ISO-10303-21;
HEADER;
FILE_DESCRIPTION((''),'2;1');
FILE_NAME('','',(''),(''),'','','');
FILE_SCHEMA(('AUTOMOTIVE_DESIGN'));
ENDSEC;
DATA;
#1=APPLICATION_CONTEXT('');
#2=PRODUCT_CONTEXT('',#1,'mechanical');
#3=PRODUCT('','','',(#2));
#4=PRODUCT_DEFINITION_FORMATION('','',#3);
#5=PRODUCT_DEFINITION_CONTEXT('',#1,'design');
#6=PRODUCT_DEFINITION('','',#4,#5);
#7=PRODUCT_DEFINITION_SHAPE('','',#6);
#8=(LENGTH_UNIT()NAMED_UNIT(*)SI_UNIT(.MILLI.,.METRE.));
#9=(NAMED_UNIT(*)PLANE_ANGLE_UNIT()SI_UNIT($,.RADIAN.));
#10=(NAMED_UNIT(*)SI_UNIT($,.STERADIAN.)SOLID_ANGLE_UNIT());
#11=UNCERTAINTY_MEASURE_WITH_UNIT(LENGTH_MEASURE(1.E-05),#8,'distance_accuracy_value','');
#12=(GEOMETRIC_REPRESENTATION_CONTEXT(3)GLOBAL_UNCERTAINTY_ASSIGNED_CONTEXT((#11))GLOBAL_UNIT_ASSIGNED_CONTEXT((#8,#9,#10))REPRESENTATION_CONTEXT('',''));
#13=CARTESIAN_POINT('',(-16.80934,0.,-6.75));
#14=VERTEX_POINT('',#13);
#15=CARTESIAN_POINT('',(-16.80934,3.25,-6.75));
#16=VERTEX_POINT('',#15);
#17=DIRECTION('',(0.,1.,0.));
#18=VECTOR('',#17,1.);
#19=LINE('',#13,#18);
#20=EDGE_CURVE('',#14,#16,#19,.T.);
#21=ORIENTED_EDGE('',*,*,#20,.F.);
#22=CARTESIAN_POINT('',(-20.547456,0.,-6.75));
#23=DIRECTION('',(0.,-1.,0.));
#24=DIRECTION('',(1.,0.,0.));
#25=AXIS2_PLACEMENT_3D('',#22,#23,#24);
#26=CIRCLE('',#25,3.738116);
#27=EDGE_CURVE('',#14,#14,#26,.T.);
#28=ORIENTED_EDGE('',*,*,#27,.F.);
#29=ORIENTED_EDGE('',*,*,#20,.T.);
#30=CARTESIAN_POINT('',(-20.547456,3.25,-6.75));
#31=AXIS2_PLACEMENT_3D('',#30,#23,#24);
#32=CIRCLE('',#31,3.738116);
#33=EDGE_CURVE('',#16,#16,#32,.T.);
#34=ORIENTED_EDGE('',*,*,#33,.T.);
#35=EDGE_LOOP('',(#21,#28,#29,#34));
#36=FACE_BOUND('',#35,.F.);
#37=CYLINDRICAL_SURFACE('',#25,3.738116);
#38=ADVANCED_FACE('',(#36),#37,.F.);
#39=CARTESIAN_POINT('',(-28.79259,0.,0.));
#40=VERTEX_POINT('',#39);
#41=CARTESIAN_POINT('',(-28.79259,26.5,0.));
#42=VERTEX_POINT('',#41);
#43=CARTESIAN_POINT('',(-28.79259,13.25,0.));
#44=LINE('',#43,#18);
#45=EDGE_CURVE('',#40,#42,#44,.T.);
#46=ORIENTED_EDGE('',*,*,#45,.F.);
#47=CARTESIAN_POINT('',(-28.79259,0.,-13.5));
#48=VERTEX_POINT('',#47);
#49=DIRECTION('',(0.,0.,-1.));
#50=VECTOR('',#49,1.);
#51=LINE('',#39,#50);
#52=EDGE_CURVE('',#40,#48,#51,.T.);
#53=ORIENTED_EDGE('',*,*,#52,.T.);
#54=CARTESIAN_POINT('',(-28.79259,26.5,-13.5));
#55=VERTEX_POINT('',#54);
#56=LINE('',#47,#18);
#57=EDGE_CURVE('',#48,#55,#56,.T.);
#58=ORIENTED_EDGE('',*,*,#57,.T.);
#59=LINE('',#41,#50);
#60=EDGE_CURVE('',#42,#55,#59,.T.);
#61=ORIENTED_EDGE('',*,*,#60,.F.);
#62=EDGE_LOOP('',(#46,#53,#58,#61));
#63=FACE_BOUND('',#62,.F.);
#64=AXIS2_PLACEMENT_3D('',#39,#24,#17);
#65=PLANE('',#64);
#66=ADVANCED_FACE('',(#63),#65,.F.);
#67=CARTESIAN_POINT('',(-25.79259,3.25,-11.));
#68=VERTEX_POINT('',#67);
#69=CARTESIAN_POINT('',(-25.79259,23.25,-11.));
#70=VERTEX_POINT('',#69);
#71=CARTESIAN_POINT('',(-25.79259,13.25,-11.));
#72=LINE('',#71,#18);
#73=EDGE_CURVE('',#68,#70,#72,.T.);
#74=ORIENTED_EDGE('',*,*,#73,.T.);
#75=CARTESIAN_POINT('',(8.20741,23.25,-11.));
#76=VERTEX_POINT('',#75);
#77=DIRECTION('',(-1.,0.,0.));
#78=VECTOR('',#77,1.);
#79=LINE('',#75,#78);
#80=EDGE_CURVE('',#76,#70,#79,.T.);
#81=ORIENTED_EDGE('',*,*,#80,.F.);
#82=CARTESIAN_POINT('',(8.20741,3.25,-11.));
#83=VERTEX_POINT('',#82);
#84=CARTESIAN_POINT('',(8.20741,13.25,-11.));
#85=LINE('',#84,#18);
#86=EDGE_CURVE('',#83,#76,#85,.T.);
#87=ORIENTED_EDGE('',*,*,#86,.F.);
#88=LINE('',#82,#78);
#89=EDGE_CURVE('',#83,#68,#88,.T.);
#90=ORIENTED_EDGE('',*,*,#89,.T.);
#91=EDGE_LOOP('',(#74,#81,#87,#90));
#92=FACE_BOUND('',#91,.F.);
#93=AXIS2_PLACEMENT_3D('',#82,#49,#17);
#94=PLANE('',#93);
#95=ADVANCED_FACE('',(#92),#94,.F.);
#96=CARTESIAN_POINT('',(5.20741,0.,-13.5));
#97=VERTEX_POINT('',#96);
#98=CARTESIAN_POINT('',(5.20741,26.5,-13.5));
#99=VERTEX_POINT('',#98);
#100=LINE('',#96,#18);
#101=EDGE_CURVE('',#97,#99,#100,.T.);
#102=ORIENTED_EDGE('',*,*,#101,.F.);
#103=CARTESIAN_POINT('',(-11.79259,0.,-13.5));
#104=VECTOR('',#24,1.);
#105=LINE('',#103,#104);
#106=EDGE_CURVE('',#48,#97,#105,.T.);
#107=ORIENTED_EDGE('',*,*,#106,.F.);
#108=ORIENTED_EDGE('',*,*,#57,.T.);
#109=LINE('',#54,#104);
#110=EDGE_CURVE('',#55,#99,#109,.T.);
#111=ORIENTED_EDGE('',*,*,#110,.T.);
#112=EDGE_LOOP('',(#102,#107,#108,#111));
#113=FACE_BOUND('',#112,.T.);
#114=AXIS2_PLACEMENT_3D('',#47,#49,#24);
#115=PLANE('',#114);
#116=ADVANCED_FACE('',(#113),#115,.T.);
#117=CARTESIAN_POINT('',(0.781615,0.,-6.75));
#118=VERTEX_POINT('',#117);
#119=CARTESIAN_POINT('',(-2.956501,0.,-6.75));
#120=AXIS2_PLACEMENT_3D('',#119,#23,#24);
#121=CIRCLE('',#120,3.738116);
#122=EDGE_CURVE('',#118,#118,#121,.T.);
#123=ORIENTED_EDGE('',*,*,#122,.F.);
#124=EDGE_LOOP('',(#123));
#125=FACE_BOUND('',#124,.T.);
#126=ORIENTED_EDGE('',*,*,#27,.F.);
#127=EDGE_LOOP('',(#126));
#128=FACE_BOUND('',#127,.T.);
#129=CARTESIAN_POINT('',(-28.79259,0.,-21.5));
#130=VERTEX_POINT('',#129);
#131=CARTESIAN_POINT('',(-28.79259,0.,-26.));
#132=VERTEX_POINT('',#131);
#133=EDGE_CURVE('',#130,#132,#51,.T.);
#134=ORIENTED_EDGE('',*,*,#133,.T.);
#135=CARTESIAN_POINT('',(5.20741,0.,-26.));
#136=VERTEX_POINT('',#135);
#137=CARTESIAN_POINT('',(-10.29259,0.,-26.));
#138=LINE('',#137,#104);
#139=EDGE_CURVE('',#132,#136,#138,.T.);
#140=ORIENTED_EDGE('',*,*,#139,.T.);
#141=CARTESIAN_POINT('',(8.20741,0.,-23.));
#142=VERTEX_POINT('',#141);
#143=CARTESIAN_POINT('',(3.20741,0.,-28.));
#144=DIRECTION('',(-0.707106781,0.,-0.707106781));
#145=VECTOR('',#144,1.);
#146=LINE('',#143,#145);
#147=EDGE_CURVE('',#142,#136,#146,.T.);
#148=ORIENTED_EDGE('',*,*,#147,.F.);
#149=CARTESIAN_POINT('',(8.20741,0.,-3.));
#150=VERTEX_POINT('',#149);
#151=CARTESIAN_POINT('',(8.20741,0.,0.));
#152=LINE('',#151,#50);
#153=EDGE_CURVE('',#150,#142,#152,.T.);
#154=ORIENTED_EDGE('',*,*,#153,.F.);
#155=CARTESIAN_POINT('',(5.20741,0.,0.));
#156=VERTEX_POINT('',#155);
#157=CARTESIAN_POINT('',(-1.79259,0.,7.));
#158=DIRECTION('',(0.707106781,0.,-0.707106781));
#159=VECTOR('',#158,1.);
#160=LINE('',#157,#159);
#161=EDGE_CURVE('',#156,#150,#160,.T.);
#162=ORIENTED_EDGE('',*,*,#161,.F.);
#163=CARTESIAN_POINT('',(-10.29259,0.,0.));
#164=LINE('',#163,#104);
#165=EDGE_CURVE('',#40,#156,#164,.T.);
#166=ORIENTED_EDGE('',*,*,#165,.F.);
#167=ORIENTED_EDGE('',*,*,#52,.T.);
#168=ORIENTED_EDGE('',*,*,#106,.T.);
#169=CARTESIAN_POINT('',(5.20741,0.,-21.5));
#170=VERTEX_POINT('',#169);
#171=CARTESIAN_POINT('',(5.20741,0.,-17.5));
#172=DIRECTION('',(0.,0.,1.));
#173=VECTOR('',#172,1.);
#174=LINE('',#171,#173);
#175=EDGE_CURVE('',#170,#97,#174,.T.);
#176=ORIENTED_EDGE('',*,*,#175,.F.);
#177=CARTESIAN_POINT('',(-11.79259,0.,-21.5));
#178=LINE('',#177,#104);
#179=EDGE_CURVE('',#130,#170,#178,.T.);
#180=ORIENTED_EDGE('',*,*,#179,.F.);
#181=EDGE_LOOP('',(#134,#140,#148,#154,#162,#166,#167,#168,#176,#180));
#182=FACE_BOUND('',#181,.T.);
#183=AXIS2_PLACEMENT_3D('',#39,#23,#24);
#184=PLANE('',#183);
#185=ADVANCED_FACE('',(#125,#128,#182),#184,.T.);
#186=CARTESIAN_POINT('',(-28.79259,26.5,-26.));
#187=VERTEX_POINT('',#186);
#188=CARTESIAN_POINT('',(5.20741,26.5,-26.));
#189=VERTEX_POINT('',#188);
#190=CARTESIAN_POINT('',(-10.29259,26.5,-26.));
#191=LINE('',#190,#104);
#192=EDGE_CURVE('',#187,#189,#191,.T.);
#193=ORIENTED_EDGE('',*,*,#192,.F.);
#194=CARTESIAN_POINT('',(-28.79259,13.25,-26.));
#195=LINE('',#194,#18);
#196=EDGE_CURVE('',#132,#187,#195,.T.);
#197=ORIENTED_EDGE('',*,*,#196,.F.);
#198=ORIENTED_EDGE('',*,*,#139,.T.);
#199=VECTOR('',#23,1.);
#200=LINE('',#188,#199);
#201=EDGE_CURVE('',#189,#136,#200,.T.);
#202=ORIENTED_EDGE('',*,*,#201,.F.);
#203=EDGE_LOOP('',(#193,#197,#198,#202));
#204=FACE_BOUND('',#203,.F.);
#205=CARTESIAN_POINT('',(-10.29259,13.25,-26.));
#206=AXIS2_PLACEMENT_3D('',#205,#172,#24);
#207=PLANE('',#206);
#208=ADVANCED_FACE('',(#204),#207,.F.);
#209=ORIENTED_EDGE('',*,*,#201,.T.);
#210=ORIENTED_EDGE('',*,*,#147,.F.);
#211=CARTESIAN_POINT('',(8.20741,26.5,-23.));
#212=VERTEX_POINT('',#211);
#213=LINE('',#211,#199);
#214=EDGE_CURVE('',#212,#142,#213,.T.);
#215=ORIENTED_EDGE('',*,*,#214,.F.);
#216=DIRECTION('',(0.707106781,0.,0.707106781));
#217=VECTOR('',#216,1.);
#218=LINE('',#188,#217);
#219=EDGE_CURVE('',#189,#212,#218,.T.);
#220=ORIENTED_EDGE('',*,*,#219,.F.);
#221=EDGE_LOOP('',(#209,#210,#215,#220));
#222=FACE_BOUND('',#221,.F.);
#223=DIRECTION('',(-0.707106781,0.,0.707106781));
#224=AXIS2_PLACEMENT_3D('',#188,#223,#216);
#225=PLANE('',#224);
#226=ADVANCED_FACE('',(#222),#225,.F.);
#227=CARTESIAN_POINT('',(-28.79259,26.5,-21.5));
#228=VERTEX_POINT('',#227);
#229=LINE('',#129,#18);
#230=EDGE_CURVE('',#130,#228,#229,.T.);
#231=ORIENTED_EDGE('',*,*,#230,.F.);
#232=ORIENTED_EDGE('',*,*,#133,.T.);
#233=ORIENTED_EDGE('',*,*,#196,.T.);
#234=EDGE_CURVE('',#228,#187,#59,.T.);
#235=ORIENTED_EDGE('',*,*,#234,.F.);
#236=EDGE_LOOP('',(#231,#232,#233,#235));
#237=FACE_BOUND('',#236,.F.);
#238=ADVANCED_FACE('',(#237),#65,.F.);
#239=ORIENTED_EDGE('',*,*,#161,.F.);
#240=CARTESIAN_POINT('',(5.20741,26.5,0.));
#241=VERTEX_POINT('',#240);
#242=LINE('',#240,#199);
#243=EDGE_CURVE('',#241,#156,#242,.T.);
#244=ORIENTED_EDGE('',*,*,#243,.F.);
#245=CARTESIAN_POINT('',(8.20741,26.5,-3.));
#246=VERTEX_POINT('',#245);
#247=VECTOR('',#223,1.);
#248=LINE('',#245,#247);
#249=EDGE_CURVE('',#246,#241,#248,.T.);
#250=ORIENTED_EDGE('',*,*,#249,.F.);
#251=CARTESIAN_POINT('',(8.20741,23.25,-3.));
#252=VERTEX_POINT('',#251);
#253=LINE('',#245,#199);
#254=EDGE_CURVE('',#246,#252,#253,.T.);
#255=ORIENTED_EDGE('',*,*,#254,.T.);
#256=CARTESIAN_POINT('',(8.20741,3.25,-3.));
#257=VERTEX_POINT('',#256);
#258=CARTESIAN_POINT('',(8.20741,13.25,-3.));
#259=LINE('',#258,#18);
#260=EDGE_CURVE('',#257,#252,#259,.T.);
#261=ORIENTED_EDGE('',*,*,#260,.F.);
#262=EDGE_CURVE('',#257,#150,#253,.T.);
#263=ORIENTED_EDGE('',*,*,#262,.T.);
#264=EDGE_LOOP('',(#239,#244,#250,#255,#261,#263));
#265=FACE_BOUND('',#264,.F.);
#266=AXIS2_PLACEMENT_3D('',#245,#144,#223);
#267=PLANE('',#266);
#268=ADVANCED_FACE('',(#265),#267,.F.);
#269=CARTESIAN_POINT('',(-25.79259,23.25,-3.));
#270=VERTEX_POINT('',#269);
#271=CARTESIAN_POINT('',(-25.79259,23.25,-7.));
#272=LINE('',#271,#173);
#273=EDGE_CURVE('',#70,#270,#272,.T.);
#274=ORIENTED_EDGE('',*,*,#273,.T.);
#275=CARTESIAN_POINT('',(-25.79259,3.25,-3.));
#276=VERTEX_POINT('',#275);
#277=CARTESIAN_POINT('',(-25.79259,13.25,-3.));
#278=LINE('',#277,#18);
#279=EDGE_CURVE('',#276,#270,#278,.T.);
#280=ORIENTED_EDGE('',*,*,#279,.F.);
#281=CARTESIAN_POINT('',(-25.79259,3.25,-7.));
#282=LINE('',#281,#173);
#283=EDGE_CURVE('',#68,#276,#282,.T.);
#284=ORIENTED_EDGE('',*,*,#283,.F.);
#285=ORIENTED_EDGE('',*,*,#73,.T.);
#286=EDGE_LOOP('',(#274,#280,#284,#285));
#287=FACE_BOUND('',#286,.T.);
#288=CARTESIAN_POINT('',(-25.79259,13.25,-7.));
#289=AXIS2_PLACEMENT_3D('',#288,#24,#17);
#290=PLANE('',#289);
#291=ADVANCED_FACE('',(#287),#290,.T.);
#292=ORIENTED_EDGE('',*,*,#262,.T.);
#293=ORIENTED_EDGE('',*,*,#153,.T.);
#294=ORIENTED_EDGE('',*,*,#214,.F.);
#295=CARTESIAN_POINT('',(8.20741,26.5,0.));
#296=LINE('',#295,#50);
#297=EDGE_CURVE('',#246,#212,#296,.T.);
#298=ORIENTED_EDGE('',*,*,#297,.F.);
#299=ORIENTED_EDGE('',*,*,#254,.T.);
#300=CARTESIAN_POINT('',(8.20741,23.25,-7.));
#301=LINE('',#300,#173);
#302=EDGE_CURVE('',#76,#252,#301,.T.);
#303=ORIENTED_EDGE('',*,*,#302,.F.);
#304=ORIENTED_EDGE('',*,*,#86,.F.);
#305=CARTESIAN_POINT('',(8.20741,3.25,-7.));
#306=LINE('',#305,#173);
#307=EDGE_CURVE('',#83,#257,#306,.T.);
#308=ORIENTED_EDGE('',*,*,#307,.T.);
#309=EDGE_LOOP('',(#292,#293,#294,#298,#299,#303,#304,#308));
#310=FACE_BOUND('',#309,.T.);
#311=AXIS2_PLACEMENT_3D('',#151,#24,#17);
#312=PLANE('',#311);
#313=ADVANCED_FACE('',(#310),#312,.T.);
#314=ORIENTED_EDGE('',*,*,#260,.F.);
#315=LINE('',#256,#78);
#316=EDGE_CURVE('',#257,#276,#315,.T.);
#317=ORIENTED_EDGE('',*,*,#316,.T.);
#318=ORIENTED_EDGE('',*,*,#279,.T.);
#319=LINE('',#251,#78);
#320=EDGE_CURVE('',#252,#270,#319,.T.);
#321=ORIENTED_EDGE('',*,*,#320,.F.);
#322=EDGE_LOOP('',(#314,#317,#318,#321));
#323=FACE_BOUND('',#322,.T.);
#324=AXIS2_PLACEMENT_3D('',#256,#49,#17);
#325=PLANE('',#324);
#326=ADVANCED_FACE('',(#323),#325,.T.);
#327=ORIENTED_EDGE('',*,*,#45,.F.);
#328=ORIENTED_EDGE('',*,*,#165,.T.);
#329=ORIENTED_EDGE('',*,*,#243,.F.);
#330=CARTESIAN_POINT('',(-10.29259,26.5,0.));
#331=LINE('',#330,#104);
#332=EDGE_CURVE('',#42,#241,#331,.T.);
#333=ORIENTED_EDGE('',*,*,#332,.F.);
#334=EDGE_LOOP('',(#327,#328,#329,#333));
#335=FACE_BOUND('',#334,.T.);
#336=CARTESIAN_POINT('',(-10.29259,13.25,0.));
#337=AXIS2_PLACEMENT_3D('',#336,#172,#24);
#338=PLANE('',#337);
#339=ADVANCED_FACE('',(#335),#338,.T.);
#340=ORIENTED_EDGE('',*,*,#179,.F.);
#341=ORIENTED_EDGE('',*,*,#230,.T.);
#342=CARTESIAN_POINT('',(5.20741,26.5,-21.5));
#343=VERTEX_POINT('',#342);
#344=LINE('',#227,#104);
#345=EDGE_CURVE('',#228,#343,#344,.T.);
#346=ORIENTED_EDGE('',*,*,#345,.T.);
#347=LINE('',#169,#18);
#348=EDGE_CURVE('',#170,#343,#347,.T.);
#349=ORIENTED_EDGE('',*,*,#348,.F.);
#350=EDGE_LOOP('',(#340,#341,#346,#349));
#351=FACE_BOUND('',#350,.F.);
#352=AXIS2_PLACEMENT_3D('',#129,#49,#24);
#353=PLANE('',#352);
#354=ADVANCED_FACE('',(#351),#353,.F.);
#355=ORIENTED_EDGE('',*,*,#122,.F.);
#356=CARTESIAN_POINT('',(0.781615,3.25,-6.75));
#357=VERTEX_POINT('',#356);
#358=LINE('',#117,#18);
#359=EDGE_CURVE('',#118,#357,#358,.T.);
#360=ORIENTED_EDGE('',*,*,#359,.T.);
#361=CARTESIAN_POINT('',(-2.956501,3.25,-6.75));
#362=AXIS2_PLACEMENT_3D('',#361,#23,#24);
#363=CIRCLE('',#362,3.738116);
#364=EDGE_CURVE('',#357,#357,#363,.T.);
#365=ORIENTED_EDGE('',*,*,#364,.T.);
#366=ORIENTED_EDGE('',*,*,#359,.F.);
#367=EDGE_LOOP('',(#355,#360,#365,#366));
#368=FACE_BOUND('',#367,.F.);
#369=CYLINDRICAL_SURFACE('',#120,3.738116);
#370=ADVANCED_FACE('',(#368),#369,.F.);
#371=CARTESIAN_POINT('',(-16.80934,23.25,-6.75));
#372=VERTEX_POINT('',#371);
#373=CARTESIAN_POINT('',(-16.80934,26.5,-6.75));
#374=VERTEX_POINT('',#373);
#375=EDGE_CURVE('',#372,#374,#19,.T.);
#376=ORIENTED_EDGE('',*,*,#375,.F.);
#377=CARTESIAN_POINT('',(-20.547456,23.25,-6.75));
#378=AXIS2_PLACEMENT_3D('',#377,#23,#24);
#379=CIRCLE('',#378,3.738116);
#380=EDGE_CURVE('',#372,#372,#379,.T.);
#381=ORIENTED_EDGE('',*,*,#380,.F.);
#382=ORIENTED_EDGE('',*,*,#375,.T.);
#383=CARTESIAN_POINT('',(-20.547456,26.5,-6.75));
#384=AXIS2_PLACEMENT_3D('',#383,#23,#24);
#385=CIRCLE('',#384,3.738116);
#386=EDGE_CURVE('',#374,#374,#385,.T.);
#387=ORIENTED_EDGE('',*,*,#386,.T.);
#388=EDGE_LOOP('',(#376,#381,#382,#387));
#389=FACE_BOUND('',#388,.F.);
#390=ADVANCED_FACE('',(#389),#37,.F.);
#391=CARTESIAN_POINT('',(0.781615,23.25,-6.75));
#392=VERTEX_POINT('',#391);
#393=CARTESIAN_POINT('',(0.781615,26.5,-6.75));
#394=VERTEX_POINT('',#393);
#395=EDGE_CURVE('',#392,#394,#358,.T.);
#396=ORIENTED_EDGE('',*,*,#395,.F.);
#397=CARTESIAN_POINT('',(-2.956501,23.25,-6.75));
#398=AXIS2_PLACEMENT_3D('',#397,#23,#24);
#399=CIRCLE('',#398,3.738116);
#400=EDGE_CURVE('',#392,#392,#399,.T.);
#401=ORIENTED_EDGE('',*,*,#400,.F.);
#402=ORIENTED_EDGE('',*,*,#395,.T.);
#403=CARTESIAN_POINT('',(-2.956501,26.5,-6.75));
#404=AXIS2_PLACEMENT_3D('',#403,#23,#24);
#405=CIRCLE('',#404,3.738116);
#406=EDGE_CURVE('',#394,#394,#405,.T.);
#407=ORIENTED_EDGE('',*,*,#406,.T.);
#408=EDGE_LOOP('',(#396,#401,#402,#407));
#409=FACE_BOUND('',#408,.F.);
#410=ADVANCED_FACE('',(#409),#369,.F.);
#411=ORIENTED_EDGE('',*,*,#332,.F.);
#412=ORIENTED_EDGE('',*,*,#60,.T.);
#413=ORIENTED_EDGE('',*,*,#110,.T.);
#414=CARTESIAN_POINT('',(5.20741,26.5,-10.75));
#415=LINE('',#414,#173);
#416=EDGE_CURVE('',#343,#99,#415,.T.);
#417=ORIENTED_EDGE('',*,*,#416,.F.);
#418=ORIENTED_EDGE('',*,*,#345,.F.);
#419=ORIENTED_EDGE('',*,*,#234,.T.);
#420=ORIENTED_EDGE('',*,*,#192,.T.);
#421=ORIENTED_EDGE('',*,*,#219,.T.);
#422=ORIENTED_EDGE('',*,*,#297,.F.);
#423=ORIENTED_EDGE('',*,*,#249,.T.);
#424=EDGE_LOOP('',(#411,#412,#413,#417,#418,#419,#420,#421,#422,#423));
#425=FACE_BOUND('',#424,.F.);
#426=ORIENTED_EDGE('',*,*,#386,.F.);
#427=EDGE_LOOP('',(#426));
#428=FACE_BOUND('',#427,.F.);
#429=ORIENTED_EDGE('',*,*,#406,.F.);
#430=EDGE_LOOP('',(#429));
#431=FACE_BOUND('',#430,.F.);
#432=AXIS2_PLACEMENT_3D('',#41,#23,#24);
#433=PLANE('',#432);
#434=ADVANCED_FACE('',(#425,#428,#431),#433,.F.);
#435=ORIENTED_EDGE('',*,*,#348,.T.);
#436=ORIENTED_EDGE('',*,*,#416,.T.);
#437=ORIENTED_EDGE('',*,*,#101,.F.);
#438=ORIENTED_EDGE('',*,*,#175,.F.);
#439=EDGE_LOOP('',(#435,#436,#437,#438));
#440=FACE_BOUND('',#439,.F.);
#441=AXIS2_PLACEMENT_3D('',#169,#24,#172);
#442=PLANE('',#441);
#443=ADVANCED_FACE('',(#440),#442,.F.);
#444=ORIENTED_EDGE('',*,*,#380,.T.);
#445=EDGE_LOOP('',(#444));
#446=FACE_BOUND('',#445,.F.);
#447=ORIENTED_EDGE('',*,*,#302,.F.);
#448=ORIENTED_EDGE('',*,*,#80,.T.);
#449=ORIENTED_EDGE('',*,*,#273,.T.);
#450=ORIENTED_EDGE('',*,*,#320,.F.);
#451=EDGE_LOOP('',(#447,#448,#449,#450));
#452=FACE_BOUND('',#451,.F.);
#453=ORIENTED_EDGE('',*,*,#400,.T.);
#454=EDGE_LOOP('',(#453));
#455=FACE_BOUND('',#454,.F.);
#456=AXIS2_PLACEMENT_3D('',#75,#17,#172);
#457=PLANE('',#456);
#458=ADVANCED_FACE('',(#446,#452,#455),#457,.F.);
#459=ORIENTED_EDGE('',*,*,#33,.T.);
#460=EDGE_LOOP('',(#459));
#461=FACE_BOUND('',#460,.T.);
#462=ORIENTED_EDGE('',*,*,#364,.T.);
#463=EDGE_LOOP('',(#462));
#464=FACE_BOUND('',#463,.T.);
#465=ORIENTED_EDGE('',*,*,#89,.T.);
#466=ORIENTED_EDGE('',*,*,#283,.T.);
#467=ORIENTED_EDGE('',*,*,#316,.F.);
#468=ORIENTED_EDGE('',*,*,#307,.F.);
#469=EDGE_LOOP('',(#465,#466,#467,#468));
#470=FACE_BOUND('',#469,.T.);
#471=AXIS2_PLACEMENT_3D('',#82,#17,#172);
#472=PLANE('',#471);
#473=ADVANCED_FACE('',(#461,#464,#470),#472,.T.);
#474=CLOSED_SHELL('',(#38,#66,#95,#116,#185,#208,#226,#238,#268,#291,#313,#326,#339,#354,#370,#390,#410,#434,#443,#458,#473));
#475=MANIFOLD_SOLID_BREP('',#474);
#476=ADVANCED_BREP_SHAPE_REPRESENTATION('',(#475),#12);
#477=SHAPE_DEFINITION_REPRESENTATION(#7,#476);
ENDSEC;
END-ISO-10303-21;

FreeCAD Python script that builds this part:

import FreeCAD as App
import Part
import Sketcher


def add_polygon(sketch, points):
    """Adds a closed chain of lines whose ends are joined by coincident constraints."""
    first, n = sketch.GeometryCount, len(points)
    for a, b in zip(points, points[1:] + points[:1]):
        sketch.addGeometry(Part.LineSegment(App.Vector(*a, 0), App.Vector(*b, 0)), False)
    for i in range(n):
        sketch.addConstraint(Sketcher.Constraint("Coincident", first + i, 2, first + (i + 1) % n, 1))

doc = App.newDocument("Part")
body = doc.addObject("PartDesign::Body", "Body")

sketch1 = body.newObject("Sketcher::SketchObject", "Sketch")
sketch1.AttachmentSupport = (doc.getObject("XY_Plane"), [""])
sketch1.MapMode = "FlatFace"
add_polygon(sketch1, [(-28.79259, 26.5), (-28.79259, 0), (8.20741, 0), (8.20741, 26.5)])
sketch1.addConstraint([
    Sketcher.Constraint("Vertical", 0),
    Sketcher.Constraint("Horizontal", 1),
    Sketcher.Constraint("Vertical", 2),
    Sketcher.Constraint("Horizontal", 3),
    Sketcher.Constraint("PointOnObject", 0, 2, -1),
    Sketcher.Constraint("DistanceX", 1, 1, 1, 2, 37.0),
    Sketcher.Constraint("DistanceY", 0, 2, 0, 1, 26.5),
    Sketcher.Constraint("DistanceX", 0, 2, -1, 1, 28.79259),
])
pad1 = body.newObject("PartDesign::Pad", "Pad")
pad1.Profile = sketch1
pad1.Length = 26
pad1.Reversed = True

sketch2 = body.newObject("Sketcher::SketchObject", "Sketch001")
sketch2.AttachmentSupport = (doc.getObject("XZ_Plane"), [""])
sketch2.MapMode = "FlatFace"
add_polygon(sketch2, [(-28.79259, -13.5), (-28.79259, -21.5), (5.20741, -21.5), (5.20741, -13.5)])
sketch2.addGeometry(Part.Circle(App.Vector(-20.547456, -6.75, 0), App.Vector(0, 0, 1), 3.738116), False)
sketch2.addGeometry(Part.Circle(App.Vector(-2.956501, -6.75, 0), App.Vector(0, 0, 1), 3.738116), False)
sketch2.addConstraint([
    Sketcher.Constraint("Vertical", 0),
    Sketcher.Constraint("Horizontal", 1),
    Sketcher.Constraint("Vertical", 2),
    Sketcher.Constraint("Horizontal", 3),
    Sketcher.Constraint("Equal", 4, 5),
    Sketcher.Constraint("Horizontal", 4, 3, 5, 3),
    Sketcher.Constraint("DistanceX", 1, 1, 1, 2, 34.0),
    Sketcher.Constraint("DistanceY", 0, 2, 0, 1, 8.0),
    Sketcher.Constraint("DistanceY", 0, 2, -1, 1, 21.5),
    Sketcher.Constraint("DistanceY", 4, 3, -1, 1, 6.75),
    Sketcher.Constraint("Diameter", 4, 7.476232),
    Sketcher.Constraint("DistanceX", 5, 3, -1, 1, 2.956501),
    Sketcher.Constraint("DistanceX", 0, 2, -1, 1, 28.79259),
    Sketcher.Constraint("DistanceX", 4, 3, -1, 1, 20.547456),
])
pocket1 = body.newObject("PartDesign::Pocket", "Pocket")
pocket1.Profile = sketch2
pocket1.Type = "ThroughAll"

sketch3 = body.newObject("Sketcher::SketchObject", "Sketch002")
sketch3.AttachmentSupport = (doc.getObject("YZ_Plane"), [""])
sketch3.MapMode = "FlatFace"
sketch3.AttachmentOffset = App.Placement(App.Vector(0, 0, 8.20741), App.Rotation())
add_polygon(sketch3, [(3.25, -3), (3.25, -11), (23.25, -11), (23.25, -3)])
sketch3.addConstraint([
    Sketcher.Constraint("Vertical", 0),
    Sketcher.Constraint("Horizontal", 1),
    Sketcher.Constraint("Vertical", 2),
    Sketcher.Constraint("Horizontal", 3),
    Sketcher.Constraint("DistanceX", 1, 1, 1, 2, 20.0),
    Sketcher.Constraint("DistanceY", 0, 2, 0, 1, 8.0),
    Sketcher.Constraint("DistanceY", 0, 2, -1, 1, 11.0),
    Sketcher.Constraint("DistanceX", -1, 1, 0, 2, 3.25),
])
pocket2 = body.newObject("PartDesign::Pocket", "Pocket001")
pocket2.Profile = sketch3
pocket2.Length = 34

sketch4 = body.newObject("Sketcher::SketchObject", "Sketch003")
sketch4.AttachmentSupport = (doc.getObject("XZ_Plane"), [""])
sketch4.MapMode = "FlatFace"
sketch4.AttachmentOffset = App.Placement(App.Vector(0, 0, -26.5), App.Rotation())
add_polygon(sketch4, [(8.20741, 0), (8.20741, -3), (5.20741, 0)])
add_polygon(sketch4, [(8.20741, -23), (8.20741, -26), (5.20741, -26)])
sketch4.addConstraint([
    Sketcher.Constraint("Vertical", 0),
    Sketcher.Constraint("Horizontal", 2),
    Sketcher.Constraint("Vertical", 3),
    Sketcher.Constraint("Horizontal", 4),
    Sketcher.Constraint("PointOnObject", 1, 2, -1),
    Sketcher.Constraint("Perpendicular", 1, 5),
    Sketcher.Constraint("Vertical", 2, 2, 3, 2),
    Sketcher.Constraint("Vertical", 1, 2, 4, 2),
    Sketcher.Constraint("Equal", 4, 0),
    Sketcher.Constraint("DistanceX", 2, 1, 2, 2, 3.0),
    Sketcher.Constraint("DistanceY", 3, 2, -1, 1, 26.0),
    Sketcher.Constraint("DistanceX", -1, 1, 0, 2, 8.20741),
])
pocket3 = body.newObject("PartDesign::Pocket", "Pocket002")
pocket3.Profile = sketch4
pocket3.Type = "ThroughAll"
pocket3.Reversed = True

doc.recompute()
